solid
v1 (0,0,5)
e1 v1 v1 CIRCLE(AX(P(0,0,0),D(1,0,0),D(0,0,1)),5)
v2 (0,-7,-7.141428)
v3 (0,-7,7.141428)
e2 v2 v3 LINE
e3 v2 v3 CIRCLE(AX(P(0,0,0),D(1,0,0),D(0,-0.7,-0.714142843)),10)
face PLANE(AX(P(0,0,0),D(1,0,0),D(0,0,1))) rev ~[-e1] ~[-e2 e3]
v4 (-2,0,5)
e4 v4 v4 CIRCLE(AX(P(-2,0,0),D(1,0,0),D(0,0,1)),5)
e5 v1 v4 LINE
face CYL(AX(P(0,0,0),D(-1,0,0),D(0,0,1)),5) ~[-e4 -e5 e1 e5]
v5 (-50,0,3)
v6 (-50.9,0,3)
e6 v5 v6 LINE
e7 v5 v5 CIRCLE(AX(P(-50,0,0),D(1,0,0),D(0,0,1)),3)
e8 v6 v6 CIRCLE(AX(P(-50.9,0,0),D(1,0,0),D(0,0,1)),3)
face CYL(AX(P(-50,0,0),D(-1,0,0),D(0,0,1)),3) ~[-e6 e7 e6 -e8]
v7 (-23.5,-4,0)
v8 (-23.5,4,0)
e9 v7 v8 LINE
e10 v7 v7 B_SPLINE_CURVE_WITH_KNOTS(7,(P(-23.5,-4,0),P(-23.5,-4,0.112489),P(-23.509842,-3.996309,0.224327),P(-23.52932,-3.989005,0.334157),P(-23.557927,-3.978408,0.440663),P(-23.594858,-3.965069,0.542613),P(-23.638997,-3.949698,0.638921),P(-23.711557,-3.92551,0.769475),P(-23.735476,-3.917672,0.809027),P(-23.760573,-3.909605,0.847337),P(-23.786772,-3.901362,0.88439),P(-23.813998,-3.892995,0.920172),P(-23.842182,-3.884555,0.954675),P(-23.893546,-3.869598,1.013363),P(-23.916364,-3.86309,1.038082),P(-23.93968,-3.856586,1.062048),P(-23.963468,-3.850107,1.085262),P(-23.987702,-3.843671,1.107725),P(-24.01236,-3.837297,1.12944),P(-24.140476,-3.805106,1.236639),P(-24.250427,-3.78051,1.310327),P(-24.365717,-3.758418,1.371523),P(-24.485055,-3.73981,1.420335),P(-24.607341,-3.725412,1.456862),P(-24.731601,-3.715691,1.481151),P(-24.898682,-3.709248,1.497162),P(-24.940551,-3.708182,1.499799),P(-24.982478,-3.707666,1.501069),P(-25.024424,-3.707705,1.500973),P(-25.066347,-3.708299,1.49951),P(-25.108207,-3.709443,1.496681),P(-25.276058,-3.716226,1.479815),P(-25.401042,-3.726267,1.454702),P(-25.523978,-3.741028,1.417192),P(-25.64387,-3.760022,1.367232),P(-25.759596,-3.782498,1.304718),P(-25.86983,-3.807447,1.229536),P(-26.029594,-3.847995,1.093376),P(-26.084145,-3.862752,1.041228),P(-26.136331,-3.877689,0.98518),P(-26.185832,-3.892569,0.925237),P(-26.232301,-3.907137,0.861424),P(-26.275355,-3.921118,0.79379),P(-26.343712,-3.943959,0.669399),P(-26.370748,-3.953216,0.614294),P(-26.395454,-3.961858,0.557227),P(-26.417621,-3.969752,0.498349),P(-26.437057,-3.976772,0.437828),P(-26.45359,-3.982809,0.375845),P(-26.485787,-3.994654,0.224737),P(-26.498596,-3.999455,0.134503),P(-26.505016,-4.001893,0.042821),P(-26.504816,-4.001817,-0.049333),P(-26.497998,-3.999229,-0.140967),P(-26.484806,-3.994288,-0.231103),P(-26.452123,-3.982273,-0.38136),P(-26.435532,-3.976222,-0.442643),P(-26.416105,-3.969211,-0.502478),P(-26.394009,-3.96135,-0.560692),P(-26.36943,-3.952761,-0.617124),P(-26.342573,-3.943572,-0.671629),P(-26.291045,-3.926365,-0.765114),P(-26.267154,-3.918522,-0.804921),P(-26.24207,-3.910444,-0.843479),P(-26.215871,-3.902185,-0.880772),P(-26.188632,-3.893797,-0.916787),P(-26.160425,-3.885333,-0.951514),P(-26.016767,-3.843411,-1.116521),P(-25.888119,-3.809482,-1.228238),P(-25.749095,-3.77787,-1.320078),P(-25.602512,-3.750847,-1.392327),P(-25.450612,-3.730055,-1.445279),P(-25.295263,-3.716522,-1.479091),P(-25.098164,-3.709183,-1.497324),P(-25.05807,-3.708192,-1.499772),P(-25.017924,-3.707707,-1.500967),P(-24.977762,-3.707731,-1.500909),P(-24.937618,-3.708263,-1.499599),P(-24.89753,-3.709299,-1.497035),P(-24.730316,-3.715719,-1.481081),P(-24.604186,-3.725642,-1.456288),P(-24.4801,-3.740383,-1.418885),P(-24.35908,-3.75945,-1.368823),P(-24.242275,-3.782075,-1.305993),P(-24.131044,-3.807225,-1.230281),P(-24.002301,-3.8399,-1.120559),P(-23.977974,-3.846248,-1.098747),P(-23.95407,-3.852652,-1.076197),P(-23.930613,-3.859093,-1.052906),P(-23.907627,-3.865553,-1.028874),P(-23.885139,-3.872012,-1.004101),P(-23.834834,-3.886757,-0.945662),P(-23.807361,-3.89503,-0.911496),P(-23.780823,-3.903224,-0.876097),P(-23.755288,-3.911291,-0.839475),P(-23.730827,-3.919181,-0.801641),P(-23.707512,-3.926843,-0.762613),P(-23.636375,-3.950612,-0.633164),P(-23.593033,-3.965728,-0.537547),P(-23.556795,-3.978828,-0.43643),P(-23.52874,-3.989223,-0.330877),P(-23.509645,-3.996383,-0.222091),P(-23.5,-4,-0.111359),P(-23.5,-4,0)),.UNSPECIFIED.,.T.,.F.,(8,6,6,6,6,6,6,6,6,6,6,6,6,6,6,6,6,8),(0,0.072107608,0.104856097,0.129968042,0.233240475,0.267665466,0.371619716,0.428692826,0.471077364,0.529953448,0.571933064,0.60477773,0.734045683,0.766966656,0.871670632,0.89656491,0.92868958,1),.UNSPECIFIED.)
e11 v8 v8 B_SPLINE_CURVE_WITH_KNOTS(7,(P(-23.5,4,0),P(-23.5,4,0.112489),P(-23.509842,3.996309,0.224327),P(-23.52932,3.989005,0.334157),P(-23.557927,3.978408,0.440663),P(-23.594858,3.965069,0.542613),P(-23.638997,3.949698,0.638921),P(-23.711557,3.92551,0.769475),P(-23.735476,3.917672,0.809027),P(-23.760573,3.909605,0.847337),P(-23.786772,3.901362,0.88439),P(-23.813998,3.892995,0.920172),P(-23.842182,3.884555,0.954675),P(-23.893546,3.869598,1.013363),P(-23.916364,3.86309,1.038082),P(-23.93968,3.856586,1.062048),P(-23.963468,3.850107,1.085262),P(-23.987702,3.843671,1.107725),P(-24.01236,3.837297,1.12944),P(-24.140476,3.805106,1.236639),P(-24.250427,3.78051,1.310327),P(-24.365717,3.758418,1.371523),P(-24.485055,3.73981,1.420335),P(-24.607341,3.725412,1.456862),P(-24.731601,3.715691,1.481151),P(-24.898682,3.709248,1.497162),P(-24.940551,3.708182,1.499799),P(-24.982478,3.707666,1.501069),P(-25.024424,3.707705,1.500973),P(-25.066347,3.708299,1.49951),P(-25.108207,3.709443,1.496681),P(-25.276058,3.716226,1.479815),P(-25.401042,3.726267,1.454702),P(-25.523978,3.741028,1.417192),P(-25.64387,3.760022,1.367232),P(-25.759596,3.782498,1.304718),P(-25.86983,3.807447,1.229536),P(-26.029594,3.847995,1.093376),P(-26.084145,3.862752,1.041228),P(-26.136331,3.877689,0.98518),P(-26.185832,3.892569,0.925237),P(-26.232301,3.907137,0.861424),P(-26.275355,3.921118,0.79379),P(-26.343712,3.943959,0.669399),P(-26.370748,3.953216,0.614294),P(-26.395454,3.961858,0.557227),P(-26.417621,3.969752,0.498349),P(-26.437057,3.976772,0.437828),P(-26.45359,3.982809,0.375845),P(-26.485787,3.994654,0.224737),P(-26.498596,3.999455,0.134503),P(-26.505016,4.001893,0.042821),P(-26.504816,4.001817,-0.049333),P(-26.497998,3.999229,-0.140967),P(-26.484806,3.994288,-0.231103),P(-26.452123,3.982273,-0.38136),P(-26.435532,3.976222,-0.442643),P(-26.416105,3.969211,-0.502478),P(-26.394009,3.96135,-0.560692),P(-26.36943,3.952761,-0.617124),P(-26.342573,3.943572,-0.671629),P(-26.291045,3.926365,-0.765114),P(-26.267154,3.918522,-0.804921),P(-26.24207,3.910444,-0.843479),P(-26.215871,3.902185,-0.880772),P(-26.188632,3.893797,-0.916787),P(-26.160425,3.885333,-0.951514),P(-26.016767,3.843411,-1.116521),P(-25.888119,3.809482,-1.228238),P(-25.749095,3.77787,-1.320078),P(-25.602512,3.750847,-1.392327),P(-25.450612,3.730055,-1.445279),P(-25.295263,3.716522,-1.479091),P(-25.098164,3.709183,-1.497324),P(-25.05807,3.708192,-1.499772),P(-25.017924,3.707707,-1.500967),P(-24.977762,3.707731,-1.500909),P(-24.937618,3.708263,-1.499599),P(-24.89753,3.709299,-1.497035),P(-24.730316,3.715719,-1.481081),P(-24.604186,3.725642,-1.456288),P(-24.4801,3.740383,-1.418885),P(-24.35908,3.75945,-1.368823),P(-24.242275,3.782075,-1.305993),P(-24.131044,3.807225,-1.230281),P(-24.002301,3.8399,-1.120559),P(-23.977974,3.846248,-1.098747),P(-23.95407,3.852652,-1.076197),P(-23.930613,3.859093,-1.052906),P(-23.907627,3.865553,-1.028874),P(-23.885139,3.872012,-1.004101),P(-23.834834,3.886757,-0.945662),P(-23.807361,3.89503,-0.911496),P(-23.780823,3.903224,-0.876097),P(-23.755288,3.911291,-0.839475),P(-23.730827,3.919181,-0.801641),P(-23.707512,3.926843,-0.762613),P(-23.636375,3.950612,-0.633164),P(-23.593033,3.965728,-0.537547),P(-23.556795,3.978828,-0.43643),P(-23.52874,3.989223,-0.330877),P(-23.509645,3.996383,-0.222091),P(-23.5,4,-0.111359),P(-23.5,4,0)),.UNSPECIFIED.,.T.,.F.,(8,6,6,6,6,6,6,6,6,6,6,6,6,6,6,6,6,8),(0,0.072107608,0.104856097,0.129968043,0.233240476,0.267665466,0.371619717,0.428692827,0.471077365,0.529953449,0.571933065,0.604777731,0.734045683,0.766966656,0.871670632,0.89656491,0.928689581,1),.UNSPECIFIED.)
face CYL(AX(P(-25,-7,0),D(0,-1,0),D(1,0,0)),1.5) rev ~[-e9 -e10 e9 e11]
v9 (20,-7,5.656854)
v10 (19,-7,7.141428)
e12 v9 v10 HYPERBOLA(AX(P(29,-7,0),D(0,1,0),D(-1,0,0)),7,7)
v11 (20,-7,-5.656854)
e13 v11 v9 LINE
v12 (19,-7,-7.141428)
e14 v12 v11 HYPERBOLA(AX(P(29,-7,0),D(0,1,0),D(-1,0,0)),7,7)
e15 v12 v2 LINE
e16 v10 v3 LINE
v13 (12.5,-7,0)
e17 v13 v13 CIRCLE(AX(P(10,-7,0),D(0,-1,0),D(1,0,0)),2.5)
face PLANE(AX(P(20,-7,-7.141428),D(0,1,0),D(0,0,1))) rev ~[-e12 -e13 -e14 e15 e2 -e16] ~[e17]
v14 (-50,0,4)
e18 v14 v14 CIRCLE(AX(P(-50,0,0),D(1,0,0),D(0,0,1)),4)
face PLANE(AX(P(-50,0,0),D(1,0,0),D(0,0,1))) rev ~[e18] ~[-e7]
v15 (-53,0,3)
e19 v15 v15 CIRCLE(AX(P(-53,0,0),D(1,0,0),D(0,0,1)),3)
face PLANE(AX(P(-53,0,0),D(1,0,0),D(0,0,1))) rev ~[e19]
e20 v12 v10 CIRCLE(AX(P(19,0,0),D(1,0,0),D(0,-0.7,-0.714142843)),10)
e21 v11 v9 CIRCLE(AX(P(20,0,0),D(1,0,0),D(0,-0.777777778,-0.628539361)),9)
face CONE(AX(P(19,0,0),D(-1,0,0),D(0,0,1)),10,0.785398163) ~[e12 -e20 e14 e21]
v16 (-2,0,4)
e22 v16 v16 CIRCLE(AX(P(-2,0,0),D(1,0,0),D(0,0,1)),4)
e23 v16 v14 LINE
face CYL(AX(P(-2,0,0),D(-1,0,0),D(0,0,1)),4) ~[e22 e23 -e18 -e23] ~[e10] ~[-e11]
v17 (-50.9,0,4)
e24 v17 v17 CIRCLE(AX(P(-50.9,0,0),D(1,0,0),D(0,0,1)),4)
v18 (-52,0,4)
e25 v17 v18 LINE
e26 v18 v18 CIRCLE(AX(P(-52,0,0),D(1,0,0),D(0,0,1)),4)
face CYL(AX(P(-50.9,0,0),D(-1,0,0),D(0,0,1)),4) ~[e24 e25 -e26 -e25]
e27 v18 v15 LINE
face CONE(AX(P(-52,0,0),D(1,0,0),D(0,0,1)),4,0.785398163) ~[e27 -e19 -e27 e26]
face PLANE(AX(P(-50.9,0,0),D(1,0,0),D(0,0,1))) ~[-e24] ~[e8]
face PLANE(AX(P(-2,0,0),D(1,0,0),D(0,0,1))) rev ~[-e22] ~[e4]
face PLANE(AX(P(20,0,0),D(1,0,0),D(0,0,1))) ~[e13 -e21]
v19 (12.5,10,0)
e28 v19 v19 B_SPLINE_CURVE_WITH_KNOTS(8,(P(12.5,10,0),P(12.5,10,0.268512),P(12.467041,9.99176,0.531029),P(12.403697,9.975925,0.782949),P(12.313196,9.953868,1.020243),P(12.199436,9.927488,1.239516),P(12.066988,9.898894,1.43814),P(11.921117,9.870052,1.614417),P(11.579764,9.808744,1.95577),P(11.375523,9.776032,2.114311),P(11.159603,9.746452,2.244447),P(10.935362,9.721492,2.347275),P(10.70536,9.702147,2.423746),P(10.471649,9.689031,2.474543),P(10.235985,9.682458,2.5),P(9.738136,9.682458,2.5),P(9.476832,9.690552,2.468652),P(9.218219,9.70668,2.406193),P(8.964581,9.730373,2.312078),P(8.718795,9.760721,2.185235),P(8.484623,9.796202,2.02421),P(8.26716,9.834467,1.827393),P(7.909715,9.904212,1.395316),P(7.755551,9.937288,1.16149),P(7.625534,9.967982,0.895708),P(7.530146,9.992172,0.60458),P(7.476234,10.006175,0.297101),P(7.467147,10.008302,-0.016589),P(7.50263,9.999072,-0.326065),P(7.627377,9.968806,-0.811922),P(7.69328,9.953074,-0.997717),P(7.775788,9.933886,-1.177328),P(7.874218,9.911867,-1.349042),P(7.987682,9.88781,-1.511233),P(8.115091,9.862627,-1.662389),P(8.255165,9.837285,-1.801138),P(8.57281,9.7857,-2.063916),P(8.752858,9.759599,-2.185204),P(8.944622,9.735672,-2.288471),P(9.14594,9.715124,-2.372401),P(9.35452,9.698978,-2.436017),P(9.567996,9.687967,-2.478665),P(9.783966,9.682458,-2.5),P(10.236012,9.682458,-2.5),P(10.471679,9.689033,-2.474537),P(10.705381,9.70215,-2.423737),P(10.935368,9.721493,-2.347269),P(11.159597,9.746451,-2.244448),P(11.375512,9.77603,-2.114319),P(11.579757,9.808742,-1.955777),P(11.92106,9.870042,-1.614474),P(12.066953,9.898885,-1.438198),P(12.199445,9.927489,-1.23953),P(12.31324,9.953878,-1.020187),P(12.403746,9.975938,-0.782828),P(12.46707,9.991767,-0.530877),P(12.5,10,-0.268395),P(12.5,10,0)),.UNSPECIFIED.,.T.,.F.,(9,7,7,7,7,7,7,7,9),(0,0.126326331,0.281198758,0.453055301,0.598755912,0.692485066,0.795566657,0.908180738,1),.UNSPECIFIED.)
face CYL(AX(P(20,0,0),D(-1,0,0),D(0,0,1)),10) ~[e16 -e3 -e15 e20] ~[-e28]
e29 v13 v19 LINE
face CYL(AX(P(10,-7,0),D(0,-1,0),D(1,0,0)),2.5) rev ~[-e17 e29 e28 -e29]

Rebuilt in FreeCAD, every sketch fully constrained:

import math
import FreeCAD as App
import Part
import Sketcher
Q = App.Units.Quantity


def edges_at(feature, points):
    """Names of the edges that pass closest to the given points."""
    edges = feature.Shape.Edges
    near = lambda p: min(range(len(edges)), key=lambda i: edges[i].distToShape(Part.Vertex(*p))[0])
    return sorted({f"Edge{near(p) + 1}" for p in points})


def add_polygon(sketch, points):
    """Adds a closed chain of lines whose ends are joined by coincident constraints."""
    first, n = sketch.GeometryCount, len(points)
    for a, b in zip(points, points[1:] + points[:1]):
        sketch.addGeometry(Part.LineSegment(App.Vector(*a, 0), App.Vector(*b, 0)), False)
    for i in range(n):
        sketch.addConstraint(Sketcher.Constraint("Coincident", first + i, 2, first + (i + 1) % n, 1))

doc = App.newDocument("Part")
body = doc.addObject("PartDesign::Body", "Body")

# Sketch on XZ plane
sketch1 = doc.addObject("Sketcher::SketchObject", "Sketch")
body.addObject(sketch1)
sketch1.AttachmentSupport = (doc.XZ_Plane, [""])
sketch1.MapMode = "FlatFace"
add_polygon(sketch1, [(-53, 0), (20, 0), (20, 10), (0, 10), (0, 5), (-2, 5), (-2, 4), (-50, 4), (-50, 3), (-50.9, 3), (-50.9, 4), (-53, 4)])  # lines 0-11
sketch1.addConstraint([
    Sketcher.Constraint("Horizontal", 0),
    Sketcher.Constraint("Vertical", 1),
    Sketcher.Constraint("Horizontal", 2),
    Sketcher.Constraint("Vertical", 3),
    Sketcher.Constraint("Horizontal", 4),
    Sketcher.Constraint("Vertical", 5),
    Sketcher.Constraint("Horizontal", 6),
    Sketcher.Constraint("Vertical", 7),
    Sketcher.Constraint("Horizontal", 8),
    Sketcher.Constraint("Vertical", 9),
    Sketcher.Constraint("Horizontal", 10),
    Sketcher.Constraint("Vertical", 11),
    Sketcher.Constraint("PointOnObject", 0, 2, -1),
    Sketcher.Constraint("PointOnObject", 2, 2, -2),
    Sketcher.Constraint("Horizontal", 6, 2, 9, 2),
    Sketcher.Constraint("Equal", 5, 7),
    Sketcher.Constraint("DistanceX", 0, 1, 0, 2, Q("73 mm")),
    Sketcher.Constraint("DistanceX", 2, 2, 2, 1, Q("20 mm")),
    Sketcher.Constraint("DistanceX", 4, 2, 4, 1, Q("2 mm")),
    Sketcher.Constraint("DistanceX", 6, 2, 6, 1, Q("48 mm")),
    Sketcher.Constraint("DistanceY", 1, 1, 1, 2, Q("10 mm")),
    Sketcher.Constraint("DistanceY", 3, 2, 3, 1, Q("5 mm")),
    Sketcher.Constraint("DistanceY", 5, 2, 5, 1, Q("1 mm")),
    Sketcher.Constraint("DistanceX", 8, 2, 8, 1, Q("0.9 mm")),
])
revolution = doc.addObject("PartDesign::Revolution", "Revolution")
body.addObject(revolution)
revolution.Profile = sketch1
revolution.ReferenceAxis = (sketch1, ["H_Axis"])
revolution.Angle = 360
doc.recompute()

chamfer = doc.addObject("PartDesign::Chamfer", "Chamfer")
body.addObject(chamfer)
chamfer.Base = (revolution, edges_at(revolution, [(-53, 0, -4), (20, 0, -10)]))
chamfer.Size = 1

# Sketch on YZ plane
sketch2 = doc.addObject("Sketcher::SketchObject", "Sketch001")
body.addObject(sketch2)
sketch2.AttachmentSupport = (doc.YZ_Plane, [""])
sketch2.MapMode = "FlatFace"
sketch2.AttachmentOffset = App.Placement(App.Vector(0, 0, 20), App.Rotation())
sketch2.addGeometry([
    Part.LineSegment(App.Vector(-7, -7, 0), App.Vector(-7, 7, 0)),
    Part.ArcOfCircle(Part.Circle(App.Vector(0, 0, 0), App.Vector(0, 0, 1), 10), math.radians(134), math.radians(226)),
], False)
sketch2.addConstraint([
    Sketcher.Constraint("Coincident", 0, 1, 1, 2),
    Sketcher.Constraint("Coincident", 1, 1, 0, 2),
    Sketcher.Constraint("Vertical", 0),
    Sketcher.Constraint("Coincident", 1, 3, -1, 1),
    Sketcher.Constraint("Radius", 1, Q("10 mm")),
    Sketcher.Constraint("DistanceX", 0, 1, -1, 1, Q("7 mm")),
])
pocket1 = doc.addObject("PartDesign::Pocket", "Pocket")
body.addObject(pocket1)
pocket1.Profile = sketch2
pocket1.Type = "ThroughAll"

# Sketch on XZ plane
sketch3 = doc.addObject("Sketcher::SketchObject", "Sketch002")
body.addObject(sketch3)
sketch3.AttachmentSupport = (doc.XZ_Plane, [""])
sketch3.MapMode = "FlatFace"
sketch3.AttachmentOffset = App.Placement(App.Vector(0, 0, 7), App.Rotation())
sketch3.addGeometry([
    Part.Circle(App.Vector(10, 0, 0), App.Vector(0, 0, 1), 2.5),
    Part.Circle(App.Vector(-25, 0, 0), App.Vector(0, 0, 1), 1.5),
], False)
sketch3.addConstraint([
    Sketcher.Constraint("PointOnObject", 0, 3, -1),
    Sketcher.Constraint("PointOnObject", 1, 3, -1),
    Sketcher.Constraint("Diameter", 0, Q("5 mm")),
    Sketcher.Constraint("Diameter", 1, Q("3 mm")),
    Sketcher.Constraint("DistanceX", -1, 1, 0, 3, Q("10 mm")),
    Sketcher.Constraint("DistanceX", 1, 3, -1, 1, Q("25 mm")),
])
pocket2 = doc.addObject("PartDesign::Pocket", "Pocket001")
body.addObject(pocket2)
pocket2.Profile = sketch3
pocket2.Type = "ThroughAll"

doc.recompute()
